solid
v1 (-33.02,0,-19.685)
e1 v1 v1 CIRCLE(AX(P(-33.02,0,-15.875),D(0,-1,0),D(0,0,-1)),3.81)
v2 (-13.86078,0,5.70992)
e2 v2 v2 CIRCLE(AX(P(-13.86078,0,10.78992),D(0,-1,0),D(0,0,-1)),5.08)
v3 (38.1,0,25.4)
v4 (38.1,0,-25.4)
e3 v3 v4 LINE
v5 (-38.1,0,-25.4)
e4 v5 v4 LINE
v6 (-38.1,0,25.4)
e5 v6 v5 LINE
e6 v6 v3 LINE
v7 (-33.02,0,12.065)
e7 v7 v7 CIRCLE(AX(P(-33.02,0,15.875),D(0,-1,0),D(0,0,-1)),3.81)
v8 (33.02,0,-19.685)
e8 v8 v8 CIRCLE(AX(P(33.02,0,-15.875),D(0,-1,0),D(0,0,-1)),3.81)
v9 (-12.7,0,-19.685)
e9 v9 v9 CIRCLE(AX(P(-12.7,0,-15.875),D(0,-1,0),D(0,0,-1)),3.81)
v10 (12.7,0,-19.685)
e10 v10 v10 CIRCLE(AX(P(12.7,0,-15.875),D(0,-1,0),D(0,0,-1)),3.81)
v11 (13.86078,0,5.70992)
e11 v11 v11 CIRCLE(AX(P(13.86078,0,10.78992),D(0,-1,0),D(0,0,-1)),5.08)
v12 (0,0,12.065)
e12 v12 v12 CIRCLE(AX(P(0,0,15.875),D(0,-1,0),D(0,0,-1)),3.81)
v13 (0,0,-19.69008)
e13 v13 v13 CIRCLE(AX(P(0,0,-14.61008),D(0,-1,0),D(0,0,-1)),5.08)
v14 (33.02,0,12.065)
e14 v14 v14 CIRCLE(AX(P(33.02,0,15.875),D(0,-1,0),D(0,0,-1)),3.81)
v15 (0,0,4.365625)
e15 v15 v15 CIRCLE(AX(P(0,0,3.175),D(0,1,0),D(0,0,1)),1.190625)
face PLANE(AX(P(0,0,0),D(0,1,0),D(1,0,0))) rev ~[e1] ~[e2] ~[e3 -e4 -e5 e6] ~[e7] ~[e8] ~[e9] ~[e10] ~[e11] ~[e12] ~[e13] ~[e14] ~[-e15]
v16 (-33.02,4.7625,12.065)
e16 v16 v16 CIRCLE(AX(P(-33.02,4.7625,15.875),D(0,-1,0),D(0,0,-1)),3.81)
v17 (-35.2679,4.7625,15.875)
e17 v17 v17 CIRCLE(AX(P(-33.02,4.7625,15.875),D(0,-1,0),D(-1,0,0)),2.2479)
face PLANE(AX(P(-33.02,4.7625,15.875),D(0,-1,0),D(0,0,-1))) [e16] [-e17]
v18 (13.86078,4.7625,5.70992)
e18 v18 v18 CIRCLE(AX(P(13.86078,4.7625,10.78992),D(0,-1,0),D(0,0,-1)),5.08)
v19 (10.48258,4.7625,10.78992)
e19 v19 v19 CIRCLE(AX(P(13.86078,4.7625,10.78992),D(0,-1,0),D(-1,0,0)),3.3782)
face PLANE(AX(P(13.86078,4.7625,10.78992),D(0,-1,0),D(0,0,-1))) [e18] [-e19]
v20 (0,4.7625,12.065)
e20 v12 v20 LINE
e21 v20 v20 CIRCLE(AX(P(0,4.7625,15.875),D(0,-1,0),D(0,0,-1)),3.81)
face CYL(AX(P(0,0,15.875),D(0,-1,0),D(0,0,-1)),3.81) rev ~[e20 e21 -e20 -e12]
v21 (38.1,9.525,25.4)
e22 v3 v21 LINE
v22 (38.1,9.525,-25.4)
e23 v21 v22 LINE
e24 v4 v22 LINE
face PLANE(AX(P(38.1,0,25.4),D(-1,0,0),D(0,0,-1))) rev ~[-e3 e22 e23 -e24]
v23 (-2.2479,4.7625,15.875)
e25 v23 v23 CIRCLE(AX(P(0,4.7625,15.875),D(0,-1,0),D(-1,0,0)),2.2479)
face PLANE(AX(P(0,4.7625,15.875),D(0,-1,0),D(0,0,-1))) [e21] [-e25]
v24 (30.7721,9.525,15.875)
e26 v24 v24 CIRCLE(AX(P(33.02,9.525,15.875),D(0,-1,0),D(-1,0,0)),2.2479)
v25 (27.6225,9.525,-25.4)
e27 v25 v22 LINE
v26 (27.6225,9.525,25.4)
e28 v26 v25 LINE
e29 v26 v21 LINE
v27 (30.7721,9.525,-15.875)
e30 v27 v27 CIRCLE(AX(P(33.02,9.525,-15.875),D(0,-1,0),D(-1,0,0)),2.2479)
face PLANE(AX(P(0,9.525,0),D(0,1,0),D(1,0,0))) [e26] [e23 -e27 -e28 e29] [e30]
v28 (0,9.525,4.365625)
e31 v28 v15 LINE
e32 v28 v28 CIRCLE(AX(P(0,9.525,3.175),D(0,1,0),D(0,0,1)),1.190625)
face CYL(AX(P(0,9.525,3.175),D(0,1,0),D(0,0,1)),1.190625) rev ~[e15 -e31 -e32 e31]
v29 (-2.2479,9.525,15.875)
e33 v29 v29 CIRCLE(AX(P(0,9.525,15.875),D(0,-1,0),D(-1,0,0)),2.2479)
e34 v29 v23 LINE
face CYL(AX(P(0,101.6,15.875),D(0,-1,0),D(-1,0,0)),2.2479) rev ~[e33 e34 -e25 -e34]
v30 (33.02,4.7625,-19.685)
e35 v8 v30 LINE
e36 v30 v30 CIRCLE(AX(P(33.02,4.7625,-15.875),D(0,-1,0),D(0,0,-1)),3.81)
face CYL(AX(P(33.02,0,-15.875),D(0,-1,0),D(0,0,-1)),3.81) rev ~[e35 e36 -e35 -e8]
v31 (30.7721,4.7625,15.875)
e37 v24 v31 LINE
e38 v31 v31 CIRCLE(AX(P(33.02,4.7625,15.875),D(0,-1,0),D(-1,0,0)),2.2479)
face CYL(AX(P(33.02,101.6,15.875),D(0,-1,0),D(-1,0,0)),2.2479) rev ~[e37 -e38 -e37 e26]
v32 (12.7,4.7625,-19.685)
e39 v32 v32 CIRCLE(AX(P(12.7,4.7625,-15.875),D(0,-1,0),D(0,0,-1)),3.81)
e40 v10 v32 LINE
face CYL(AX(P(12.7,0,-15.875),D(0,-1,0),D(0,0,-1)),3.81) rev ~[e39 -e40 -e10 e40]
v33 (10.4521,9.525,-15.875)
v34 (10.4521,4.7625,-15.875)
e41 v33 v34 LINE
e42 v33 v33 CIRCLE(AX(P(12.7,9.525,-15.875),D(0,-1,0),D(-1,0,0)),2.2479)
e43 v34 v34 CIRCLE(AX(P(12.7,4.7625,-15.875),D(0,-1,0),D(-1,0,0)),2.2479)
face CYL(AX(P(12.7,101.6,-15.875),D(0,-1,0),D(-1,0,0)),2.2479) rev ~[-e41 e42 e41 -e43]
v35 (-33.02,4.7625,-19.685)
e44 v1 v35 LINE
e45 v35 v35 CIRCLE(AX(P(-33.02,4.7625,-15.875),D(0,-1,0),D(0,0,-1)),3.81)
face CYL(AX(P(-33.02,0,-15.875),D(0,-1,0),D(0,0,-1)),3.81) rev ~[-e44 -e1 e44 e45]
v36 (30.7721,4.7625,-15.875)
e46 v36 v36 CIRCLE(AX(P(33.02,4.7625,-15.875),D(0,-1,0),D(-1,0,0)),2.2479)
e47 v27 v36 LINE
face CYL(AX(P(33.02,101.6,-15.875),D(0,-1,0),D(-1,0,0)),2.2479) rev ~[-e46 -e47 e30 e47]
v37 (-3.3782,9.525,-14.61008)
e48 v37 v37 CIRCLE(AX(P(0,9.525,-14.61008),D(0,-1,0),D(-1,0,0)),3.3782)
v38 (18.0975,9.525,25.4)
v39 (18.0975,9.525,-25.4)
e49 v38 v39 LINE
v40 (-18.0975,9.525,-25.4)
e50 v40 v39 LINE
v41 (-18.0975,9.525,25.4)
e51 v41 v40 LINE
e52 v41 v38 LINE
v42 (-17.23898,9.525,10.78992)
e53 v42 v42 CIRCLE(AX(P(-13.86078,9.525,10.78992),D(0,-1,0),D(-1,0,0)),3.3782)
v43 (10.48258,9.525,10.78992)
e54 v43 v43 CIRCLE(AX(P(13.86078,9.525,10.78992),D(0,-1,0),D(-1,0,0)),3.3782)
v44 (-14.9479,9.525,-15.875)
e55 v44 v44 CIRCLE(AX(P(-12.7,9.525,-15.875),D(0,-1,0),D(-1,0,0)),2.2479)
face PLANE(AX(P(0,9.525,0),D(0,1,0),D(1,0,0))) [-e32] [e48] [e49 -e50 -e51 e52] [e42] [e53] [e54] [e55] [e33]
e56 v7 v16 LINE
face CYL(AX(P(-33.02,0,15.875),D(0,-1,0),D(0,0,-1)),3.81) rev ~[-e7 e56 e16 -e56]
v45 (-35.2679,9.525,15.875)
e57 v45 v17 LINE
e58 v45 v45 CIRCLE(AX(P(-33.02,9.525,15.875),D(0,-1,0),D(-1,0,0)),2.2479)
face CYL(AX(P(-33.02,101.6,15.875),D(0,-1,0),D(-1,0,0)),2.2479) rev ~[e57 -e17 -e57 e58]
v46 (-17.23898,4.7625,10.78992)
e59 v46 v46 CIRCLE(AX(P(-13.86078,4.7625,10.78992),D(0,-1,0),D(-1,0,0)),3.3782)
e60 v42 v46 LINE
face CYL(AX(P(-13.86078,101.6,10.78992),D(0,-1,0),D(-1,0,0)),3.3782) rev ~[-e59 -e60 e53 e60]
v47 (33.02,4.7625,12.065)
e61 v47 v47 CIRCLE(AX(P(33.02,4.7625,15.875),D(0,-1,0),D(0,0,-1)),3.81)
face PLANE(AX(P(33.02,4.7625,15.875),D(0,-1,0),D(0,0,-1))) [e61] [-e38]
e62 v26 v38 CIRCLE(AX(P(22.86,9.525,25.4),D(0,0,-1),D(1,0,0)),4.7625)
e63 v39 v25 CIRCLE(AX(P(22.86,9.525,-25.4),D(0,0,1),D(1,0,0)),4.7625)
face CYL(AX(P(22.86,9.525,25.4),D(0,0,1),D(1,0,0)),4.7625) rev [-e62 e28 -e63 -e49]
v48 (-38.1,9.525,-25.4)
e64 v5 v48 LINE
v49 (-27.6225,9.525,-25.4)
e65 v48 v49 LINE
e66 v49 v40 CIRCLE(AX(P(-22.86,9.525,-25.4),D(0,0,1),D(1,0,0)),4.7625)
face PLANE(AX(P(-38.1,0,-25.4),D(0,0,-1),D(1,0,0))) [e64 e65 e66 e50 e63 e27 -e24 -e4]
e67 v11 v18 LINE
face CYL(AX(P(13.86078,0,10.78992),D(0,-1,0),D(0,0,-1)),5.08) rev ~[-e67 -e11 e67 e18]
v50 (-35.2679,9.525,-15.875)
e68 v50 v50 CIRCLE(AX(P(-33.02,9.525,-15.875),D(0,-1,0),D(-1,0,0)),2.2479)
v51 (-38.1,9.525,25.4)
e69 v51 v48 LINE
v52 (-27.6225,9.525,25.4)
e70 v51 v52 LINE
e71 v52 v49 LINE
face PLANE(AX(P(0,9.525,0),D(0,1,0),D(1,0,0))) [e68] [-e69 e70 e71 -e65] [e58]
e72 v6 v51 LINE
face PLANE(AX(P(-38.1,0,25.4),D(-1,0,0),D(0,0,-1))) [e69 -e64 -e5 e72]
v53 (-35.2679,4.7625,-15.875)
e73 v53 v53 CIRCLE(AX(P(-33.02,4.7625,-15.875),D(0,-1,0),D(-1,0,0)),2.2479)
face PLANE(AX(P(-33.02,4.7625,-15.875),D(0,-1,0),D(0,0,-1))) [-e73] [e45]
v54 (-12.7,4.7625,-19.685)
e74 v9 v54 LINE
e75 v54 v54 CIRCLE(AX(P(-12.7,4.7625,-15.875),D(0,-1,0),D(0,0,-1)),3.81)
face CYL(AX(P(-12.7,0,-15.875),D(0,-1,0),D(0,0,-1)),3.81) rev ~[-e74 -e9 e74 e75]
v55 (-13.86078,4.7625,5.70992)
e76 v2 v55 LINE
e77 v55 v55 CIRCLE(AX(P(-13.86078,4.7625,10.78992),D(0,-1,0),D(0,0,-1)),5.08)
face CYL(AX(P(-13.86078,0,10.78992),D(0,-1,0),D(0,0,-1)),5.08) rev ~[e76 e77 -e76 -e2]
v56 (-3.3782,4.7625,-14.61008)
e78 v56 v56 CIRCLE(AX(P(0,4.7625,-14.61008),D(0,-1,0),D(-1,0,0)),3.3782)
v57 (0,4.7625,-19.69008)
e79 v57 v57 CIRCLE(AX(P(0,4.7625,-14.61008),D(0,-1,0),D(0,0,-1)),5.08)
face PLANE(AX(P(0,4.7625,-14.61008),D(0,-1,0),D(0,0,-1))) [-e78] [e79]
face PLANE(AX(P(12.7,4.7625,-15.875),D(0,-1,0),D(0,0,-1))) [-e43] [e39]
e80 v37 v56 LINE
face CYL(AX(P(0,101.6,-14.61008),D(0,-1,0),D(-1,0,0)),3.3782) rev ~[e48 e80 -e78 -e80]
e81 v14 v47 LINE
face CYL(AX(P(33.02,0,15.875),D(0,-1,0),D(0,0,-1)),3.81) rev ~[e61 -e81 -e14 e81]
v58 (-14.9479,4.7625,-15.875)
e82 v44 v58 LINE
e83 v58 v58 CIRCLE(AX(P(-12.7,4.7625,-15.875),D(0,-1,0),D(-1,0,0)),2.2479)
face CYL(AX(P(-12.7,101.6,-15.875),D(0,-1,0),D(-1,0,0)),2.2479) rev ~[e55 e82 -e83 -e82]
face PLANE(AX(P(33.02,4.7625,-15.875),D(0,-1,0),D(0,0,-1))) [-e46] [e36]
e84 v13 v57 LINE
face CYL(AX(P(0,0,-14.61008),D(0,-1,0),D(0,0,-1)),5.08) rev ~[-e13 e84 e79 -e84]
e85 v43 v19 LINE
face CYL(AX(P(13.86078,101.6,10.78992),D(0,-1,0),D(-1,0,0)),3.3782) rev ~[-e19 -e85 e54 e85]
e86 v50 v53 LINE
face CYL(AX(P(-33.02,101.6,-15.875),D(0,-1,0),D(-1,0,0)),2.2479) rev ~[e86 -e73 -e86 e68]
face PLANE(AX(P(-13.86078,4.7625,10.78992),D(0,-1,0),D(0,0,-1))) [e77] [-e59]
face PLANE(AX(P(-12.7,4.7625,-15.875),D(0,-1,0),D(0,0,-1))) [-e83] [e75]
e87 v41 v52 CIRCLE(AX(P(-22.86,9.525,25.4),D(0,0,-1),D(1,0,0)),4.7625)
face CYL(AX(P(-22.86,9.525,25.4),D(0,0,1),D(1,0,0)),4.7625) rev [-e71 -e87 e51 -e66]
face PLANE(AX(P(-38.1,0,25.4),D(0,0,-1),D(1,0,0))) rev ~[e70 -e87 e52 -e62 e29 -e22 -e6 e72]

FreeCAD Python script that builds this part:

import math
import FreeCAD as App
import Part
import Sketcher
from FreeCAD import Vector
Q = App.Units.Quantity

doc = App.newDocument("Part")
body = doc.addObject("PartDesign::Body", "Body")

# Sketch on XZ plane
sketch1 = doc.addObject("Sketcher::SketchObject", "Sketch")
body.addObject(sketch1)
sketch1.AttachmentSupport = (doc.XZ_Plane, [""])
sketch1.MapMode = "FlatFace"
sketch1.addGeometry(Part.LineSegment(Vector(-38.1, -25.4, 0), Vector(-38.1, 25.4, 0)), False)
sketch1.addGeometry(Part.LineSegment(Vector(-38.1, 25.4, 0), Vector(38.1, 25.4, 0)), False)
sketch1.addGeometry(Part.LineSegment(Vector(38.1, 25.4, 0), Vector(38.1, -25.4, 0)), False)
sketch1.addGeometry(Part.LineSegment(Vector(38.1, -25.4, 0), Vector(-38.1, -25.4, 0)), False)
sketch1.addConstraint(Sketcher.Constraint("Coincident", 0, 2, 1, 1))
sketch1.addConstraint(Sketcher.Constraint("Coincident", 1, 2, 2, 1))
sketch1.addConstraint(Sketcher.Constraint("Coincident", 2, 2, 3, 1))
sketch1.addConstraint(Sketcher.Constraint("Coincident", 3, 2, 0, 1))
sketch1.addConstraint(Sketcher.Constraint("Vertical", 0))
sketch1.addConstraint(Sketcher.Constraint("Horizontal", 1))
sketch1.addConstraint(Sketcher.Constraint("Vertical", 2))
sketch1.addConstraint(Sketcher.Constraint("Horizontal", 3))
sketch1.addConstraint(Sketcher.Constraint("Symmetric", 0, 2, 2, 2, -1, 1))
sketch1.addConstraint(Sketcher.Constraint("DistanceX", 1, 1, 1, 2, Q("3 in")))
sketch1.addConstraint(Sketcher.Constraint("DistanceY", 0, 1, 0, 2, Q("2 in")))
pad1 = doc.addObject("PartDesign::Pad", "Pad")
body.addObject(pad1)
pad1.Profile = sketch1
pad1.Length = Q("0.375 in")
pad1.Reversed = True

# Sketch on XZ plane
sketch2 = doc.addObject("Sketcher::SketchObject", "Sketch001")
body.addObject(sketch2)
sketch2.AttachmentSupport = (doc.XZ_Plane, [""])
sketch2.MapMode = "FlatFace"
sketch2.AttachmentOffset = App.Placement(Vector(0, 0, -0.375 * 25.4), App.Rotation())
sketch2.addGeometry(Part.Circle(Vector(0, -14.61008, 0), Vector(0, 0, 1), 3.3782), False)
sketch2.addGeometry(Part.Circle(Vector(-13.86078, 10.78992, 0), Vector(0, 0, 1), 3.3782), False)
sketch2.addGeometry(Part.Circle(Vector(13.86078, 10.78992, 0), Vector(0, 0, 1), 3.3782), False)
sketch2.addConstraint(Sketcher.Constraint("Equal", 0, 1))
sketch2.addConstraint(Sketcher.Constraint("Equal", 1, 2))
sketch2.addConstraint(Sketcher.Constraint("Symmetric", 1, 3, 2, 3, -2))
sketch2.addConstraint(Sketcher.Constraint("PointOnObject", 0, 3, -2))
sketch2.addConstraint(Sketcher.Constraint("Diameter", 0, Q("0.266 in")))
sketch2.addConstraint(Sketcher.Constraint("DistanceY", 0, 3, 1, 3, Q("1 in")))
sketch2.addConstraint(Sketcher.Constraint("DistanceY", 0, 3, -1, 1, Q("0.5752 in")))
sketch2.addConstraint(Sketcher.Constraint("DistanceX", 1, 3, -1, 1, Q("0.5457 in")))
doc.recompute()
hole = doc.addObject("PartDesign::Hole", "Hole")
body.addObject(hole)
hole.Profile = sketch2
hole.ThreadType = "None"
hole.Diameter = Q("0.266 in")
hole.DepthType = "ThroughAll"
hole.Reversed = True

# Sketch on XY plane
sketch3 = doc.addObject("Sketcher::SketchObject", "Sketch002")
body.addObject(sketch3)
sketch3.AttachmentSupport = (doc.XY_Plane, [""])
sketch3.MapMode = "FlatFace"
sketch3.AttachmentOffset = App.Placement(Vector(0, 0, 1 * 25.4), App.Rotation())
sketch3.addGeometry(Part.LineSegment(Vector(-18.0975, 9.525, 0), Vector(-27.6225, 9.525, 0)), False)
sketch3.addGeometry(Part.ArcOfCircle(Part.Circle(Vector(-22.86, 9.525, 0), Vector(0, 0, 1), 4.7625), math.radians(180), math.radians(360)), False)
sketch3.addGeometry(Part.LineSegment(Vector(27.6225, 9.525, 0), Vector(18.0975, 9.525, 0)), False)
sketch3.addGeometry(Part.ArcOfCircle(Part.Circle(Vector(22.86, 9.525, 0), Vector(0, 0, 1), 4.7625), math.radians(180), math.radians(360)), False)
sketch3.addConstraint(Sketcher.Constraint("Coincident", 0, 1, 1, 2))
sketch3.addConstraint(Sketcher.Constraint("Coincident", 1, 1, 0, 2))
sketch3.addConstraint(Sketcher.Constraint("Coincident", 2, 1, 3, 2))
sketch3.addConstraint(Sketcher.Constraint("Coincident", 3, 1, 2, 2))
sketch3.addConstraint(Sketcher.Constraint("Horizontal", 0))
sketch3.addConstraint(Sketcher.Constraint("Horizontal", 2))
sketch3.addConstraint(Sketcher.Constraint("Equal", 1, 3))
sketch3.addConstraint(Sketcher.Constraint("Symmetric", 1, 3, 3, 3, -2))
sketch3.addConstraint(Sketcher.Constraint("Horizontal", 3, 3, 0, 1))
sketch3.addConstraint(Sketcher.Constraint("Horizontal", 1, 1, 2, 1))
sketch3.addConstraint(Sketcher.Constraint("Radius", 1, Q("0.1875 in")))
sketch3.addConstraint(Sketcher.Constraint("DistanceX", 1, 3, -1, 1, Q("0.9 in")))
sketch3.addConstraint(Sketcher.Constraint("DistanceY", -1, 1, 1, 3, Q("0.375 in")))
pocket1 = doc.addObject("PartDesign::Pocket", "Pocket")
body.addObject(pocket1)
pocket1.Profile = sketch3
pocket1.Type = "ThroughAll"

# Sketch on XZ plane
sketch4 = doc.addObject("Sketcher::SketchObject", "Sketch003")
body.addObject(sketch4)
sketch4.AttachmentSupport = (doc.XZ_Plane, [""])
sketch4.MapMode = "FlatFace"
sketch4.AttachmentOffset = App.Placement(Vector(0, 0, -0.375 * 25.4), App.Rotation())
sketch4.addGeometry(Part.Circle(Vector(0, 3.175, 0), Vector(0, 0, 1), 1.190625), False)
sketch4.addConstraint(Sketcher.Constraint("PointOnObject", 0, 3, -2))
sketch4.addConstraint(Sketcher.Constraint("Diameter", 0, Q("0.09375 in")))
sketch4.addConstraint(Sketcher.Constraint("DistanceY", -1, 1, 0, 3, Q("0.125 in")))
pocket2 = doc.addObject("PartDesign::Pocket", "Pocket001")
body.addObject(pocket2)
pocket2.Profile = sketch4
pocket2.Type = "ThroughAll"
pocket2.Reversed = True

# Sketch on XZ plane
sketch5 = doc.addObject("Sketcher::SketchObject", "Sketch004")
body.addObject(sketch5)
sketch5.AttachmentSupport = (doc.XZ_Plane, [""])
sketch5.MapMode = "FlatFace"
sketch5.AttachmentOffset = App.Placement(Vector(0, 0, -0.375 * 25.4), App.Rotation())
sketch5.addGeometry(Part.Circle(Vector(-33.02, -15.875, 0), Vector(0, 0, 1), 2.2479), False)
sketch5.addGeometry(Part.Circle(Vector(-33.02, 15.875, 0), Vector(0, 0, 1), 2.2479), False)
sketch5.addGeometry(Part.Circle(Vector(33.02, 15.875, 0), Vector(0, 0, 1), 2.2479), False)
sketch5.addGeometry(Part.Circle(Vector(33.02, -15.875, 0), Vector(0, 0, 1), 2.2479), False)
sketch5.addGeometry(Part.Circle(Vector(-12.7, -15.875, 0), Vector(0, 0, 1), 2.2479), False)
sketch5.addGeometry(Part.Circle(Vector(12.7, -15.875, 0), Vector(0, 0, 1), 2.2479), False)
sketch5.addGeometry(Part.Circle(Vector(0, 15.875, 0), Vector(0, 0, 1), 2.2479), False)
sketch5.addConstraint(Sketcher.Constraint("Equal", 0, 1))
sketch5.addConstraint(Sketcher.Constraint("Equal", 1, 2))
sketch5.addConstraint(Sketcher.Constraint("Equal", 2, 3))
sketch5.addConstraint(Sketcher.Constraint("Equal", 3, 4))
sketch5.addConstraint(Sketcher.Constraint("Equal", 4, 5))
sketch5.addConstraint(Sketcher.Constraint("Equal", 5, 6))
sketch5.addConstraint(Sketcher.Constraint("Symmetric", 0, 3, 2, 3, -1, 1))
sketch5.addConstraint(Sketcher.Constraint("Symmetric", 1, 3, 3, 3, -1, 1))
sketch5.addConstraint(Sketcher.Constraint("Symmetric", 1, 3, 2, 3, -2))
sketch5.addConstraint(Sketcher.Constraint("Symmetric", 4, 3, 5, 3, -2))
sketch5.addConstraint(Sketcher.Constraint("PointOnObject", 6, 3, -2))
sketch5.addConstraint(Sketcher.Constraint("Horizontal", 3, 3, 4, 3))
sketch5.addConstraint(Sketcher.Constraint("Horizontal", 2, 3, 6, 3))
sketch5.addConstraint(Sketcher.Constraint("Diameter", 0, Q("0.177 in")))
sketch5.addConstraint(Sketcher.Constraint("DistanceX", 4, 3, 5, 3, Q("1 in")))
sketch5.addConstraint(Sketcher.Constraint("DistanceX", 0, 3, -1, 1, Q("1.3 in")))
sketch5.addConstraint(Sketcher.Constraint("DistanceY", 0, 3, 1, 3, Q("1.25 in")))
doc.recompute()
hole2 = doc.addObject("PartDesign::Hole", "Hole001")
body.addObject(hole2)
hole2.Profile = sketch5
hole2.ThreadType = "None"
hole2.Diameter = Q("0.177 in")
hole2.DepthType = "ThroughAll"
hole2.Reversed = True

# Sketch on XZ plane
sketch6 = doc.addObject("Sketcher::SketchObject", "Sketch005")
body.addObject(sketch6)
sketch6.AttachmentSupport = (doc.XZ_Plane, [""])
sketch6.MapMode = "FlatFace"
sketch6.addGeometry(Part.Circle(Vector(-13.86078, 10.78992, 0), Vector(0, 0, 1), 5.08), False)
sketch6.addGeometry(Part.Circle(Vector(13.86078, 10.78992, 0), Vector(0, 0, 1), 5.08), False)
sketch6.addGeometry(Part.Circle(Vector(0, -14.61008, 0), Vector(0, 0, 1), 5.08), False)
sketch6.addConstraint(Sketcher.Constraint("Equal", 0, 1))
sketch6.addConstraint(Sketcher.Constraint("Equal", 1, 2))
sketch6.addConstraint(Sketcher.Constraint("Symmetric", 0, 3, 1, 3, -2))
sketch6.addConstraint(Sketcher.Constraint("PointOnObject", 2, 3, -2))
sketch6.addConstraint(Sketcher.Constraint("Diameter", 0, Q("0.4 in")))
sketch6.addConstraint(Sketcher.Constraint("DistanceY", 2, 3, 0, 3, Q("1 in")))
sketch6.addConstraint(Sketcher.Constraint("DistanceX", 0, 3, -1, 1, Q("0.5457 in")))
sketch6.addConstraint(Sketcher.Constraint("DistanceY", -1, 1, 0, 3, Q("0.4248 in")))
pocket3 = doc.addObject("PartDesign::Pocket", "Pocket002")
body.addObject(pocket3)
pocket3.Profile = sketch6
pocket3.Length = Q("0.1875 in")

# Sketch on XZ plane
sketch7 = doc.addObject("Sketcher::SketchObject", "Sketch006")
body.addObject(sketch7)
sketch7.AttachmentSupport = (doc.XZ_Plane, [""])
sketch7.MapMode = "FlatFace"
sketch7.addGeometry(Part.Circle(Vector(-33.02, 15.875, 0), Vector(0, 0, 1), 3.81), False)
sketch7.addGeometry(Part.Circle(Vector(0, 15.875, 0), Vector(0, 0, 1), 3.81), False)
sketch7.addGeometry(Part.Circle(Vector(33.02, 15.875, 0), Vector(0, 0, 1), 3.81), False)
sketch7.addGeometry(Part.Circle(Vector(33.02, -15.875, 0), Vector(0, 0, 1), 3.81), False)
sketch7.addGeometry(Part.Circle(Vector(12.7, -15.875, 0), Vector(0, 0, 1), 3.81), False)
sketch7.addGeometry(Part.Circle(Vector(-12.7, -15.875, 0), Vector(0, 0, 1), 3.81), False)
sketch7.addGeometry(Part.Circle(Vector(-33.02, -15.875, 0), Vector(0, 0, 1), 3.81), False)
sketch7.addConstraint(Sketcher.Constraint("Equal", 0, 1))
sketch7.addConstraint(Sketcher.Constraint("Equal", 1, 2))
sketch7.addConstraint(Sketcher.Constraint("Equal", 2, 3))
sketch7.addConstraint(Sketcher.Constraint("Equal", 3, 4))
sketch7.addConstraint(Sketcher.Constraint("Equal", 4, 5))
sketch7.addConstraint(Sketcher.Constraint("Equal", 5, 6))
sketch7.addConstraint(Sketcher.Constraint("Symmetric", 0, 3, 3, 3, -1, 1))
sketch7.addConstraint(Sketcher.Constraint("Symmetric", 2, 3, 6, 3, -1, 1))
sketch7.addConstraint(Sketcher.Constraint("Symmetric", 0, 3, 2, 3, -2))
sketch7.addConstraint(Sketcher.Constraint("Symmetric", 4, 3, 5, 3, -2))
sketch7.addConstraint(Sketcher.Constraint("PointOnObject", 1, 3, -2))
sketch7.addConstraint(Sketcher.Constraint("Horizontal", 0, 3, 1, 3))
sketch7.addConstraint(Sketcher.Constraint("Horizontal", 3, 3, 4, 3))
sketch7.addConstraint(Sketcher.Constraint("Diameter", 0, Q("0.3 in")))
sketch7.addConstraint(Sketcher.Constraint("DistanceX", 5, 3, 4, 3, Q("1 in")))
sketch7.addConstraint(Sketcher.Constraint("DistanceX", 0, 3, -1, 1, Q("1.3 in")))
sketch7.addConstraint(Sketcher.Constraint("DistanceY", 3, 3, 2, 3, Q("1.25 in")))
pocket4 = doc.addObject("PartDesign::Pocket", "Pocket003")
body.addObject(pocket4)
pocket4.Profile = sketch7
pocket4.Length = Q("0.1875 in")

doc.recompute()
